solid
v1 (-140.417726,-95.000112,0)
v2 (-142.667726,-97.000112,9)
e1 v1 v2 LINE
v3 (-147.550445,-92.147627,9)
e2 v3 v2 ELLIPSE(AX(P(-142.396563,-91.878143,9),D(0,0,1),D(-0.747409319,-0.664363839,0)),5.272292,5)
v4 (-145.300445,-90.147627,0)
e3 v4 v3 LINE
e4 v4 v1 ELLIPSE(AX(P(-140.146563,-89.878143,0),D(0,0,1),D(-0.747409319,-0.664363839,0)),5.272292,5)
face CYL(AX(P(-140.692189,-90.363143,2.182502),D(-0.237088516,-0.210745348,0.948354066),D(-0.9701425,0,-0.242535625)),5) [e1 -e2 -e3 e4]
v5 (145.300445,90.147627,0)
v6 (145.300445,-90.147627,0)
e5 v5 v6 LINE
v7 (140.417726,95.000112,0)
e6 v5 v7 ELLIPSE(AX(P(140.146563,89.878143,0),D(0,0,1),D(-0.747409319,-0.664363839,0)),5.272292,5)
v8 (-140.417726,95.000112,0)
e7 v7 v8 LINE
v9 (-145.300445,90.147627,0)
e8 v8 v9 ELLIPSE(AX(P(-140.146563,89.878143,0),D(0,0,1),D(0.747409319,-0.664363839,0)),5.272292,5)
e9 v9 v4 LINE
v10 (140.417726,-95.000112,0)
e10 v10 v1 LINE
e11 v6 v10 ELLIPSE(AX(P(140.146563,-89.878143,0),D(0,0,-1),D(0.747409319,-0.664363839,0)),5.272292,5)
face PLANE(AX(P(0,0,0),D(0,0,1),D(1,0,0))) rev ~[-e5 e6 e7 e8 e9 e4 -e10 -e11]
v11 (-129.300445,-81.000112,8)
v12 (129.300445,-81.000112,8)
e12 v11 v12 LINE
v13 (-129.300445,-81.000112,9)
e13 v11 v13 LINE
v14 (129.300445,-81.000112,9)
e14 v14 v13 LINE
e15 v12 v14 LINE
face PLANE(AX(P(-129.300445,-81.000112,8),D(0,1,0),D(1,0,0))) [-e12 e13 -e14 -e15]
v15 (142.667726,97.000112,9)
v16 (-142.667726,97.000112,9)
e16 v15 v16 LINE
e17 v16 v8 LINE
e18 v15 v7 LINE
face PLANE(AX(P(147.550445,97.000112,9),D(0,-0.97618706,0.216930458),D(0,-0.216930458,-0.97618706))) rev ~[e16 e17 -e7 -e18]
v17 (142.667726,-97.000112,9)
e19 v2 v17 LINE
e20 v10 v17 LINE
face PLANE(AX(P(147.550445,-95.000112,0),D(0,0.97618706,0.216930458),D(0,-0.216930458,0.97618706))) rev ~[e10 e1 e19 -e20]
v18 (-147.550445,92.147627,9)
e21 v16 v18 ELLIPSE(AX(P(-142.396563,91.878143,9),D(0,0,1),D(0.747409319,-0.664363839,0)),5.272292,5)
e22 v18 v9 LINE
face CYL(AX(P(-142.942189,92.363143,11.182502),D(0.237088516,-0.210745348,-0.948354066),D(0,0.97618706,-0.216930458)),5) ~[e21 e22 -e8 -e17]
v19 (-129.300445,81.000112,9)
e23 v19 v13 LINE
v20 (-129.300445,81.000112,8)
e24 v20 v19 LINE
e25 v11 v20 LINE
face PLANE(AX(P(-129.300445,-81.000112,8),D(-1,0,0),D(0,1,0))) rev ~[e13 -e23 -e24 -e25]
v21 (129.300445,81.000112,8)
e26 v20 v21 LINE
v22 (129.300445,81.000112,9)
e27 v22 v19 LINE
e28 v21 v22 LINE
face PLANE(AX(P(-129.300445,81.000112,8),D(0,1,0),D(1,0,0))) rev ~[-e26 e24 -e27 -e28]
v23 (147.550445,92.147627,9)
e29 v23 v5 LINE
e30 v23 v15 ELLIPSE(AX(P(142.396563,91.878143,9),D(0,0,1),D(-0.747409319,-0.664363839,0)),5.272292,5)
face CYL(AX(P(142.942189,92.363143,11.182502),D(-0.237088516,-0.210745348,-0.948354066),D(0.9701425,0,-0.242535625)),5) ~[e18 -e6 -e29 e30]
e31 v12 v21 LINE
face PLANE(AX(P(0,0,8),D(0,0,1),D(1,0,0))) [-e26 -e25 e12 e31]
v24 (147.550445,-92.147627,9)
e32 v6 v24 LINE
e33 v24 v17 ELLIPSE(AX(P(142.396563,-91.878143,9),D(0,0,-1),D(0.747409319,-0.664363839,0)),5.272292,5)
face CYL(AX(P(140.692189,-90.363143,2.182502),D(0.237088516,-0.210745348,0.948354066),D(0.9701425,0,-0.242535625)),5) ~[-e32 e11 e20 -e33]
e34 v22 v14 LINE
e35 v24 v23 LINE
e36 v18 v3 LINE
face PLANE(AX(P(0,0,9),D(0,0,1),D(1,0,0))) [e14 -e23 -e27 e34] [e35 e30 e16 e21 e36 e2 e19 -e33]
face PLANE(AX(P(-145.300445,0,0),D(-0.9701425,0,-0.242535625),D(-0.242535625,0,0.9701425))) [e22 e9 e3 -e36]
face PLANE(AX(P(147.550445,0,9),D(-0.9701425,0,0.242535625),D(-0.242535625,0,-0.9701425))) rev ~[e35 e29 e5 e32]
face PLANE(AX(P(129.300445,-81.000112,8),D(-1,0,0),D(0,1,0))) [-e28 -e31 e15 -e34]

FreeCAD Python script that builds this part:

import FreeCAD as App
import Part
import Sketcher
from FreeCAD import Vector
Q = App.Units.Quantity


def edges_at(feature, points):
    """Names of the edges that pass closest to the given points."""
    edges = feature.Shape.Edges
    near = lambda p: min(range(len(edges)), key=lambda i: edges[i].distToShape(Part.Vertex(*p))[0])
    return sorted({f"Edge{near(p) + 1}" for p in points})

doc = App.newDocument("Part")
body = doc.addObject("PartDesign::Body", "Body")

sketch1 = body.newObject("Sketcher::SketchObject", "Sketch")
sketch1.AttachmentSupport = (doc.getObject("XY_Plane"), [""])
sketch1.MapMode = "FlatFace"
sketch1.addGeometry([
    Part.LineSegment(Vector(148, -97, 0), Vector(148, 97, 0)),
    Part.LineSegment(Vector(148, 97, 0), Vector(-148, 97, 0)),
    Part.LineSegment(Vector(-148, 97, 0), Vector(-148, -97, 0)),
    Part.LineSegment(Vector(-148, -97, 0), Vector(148, -97, 0)),
], False)
sketch1.addConstraint([
    Sketcher.Constraint("Coincident", 0, 2, 1, 1),
    Sketcher.Constraint("Coincident", 1, 2, 2, 1),
    Sketcher.Constraint("Coincident", 2, 2, 3, 1),
    Sketcher.Constraint("Coincident", 3, 2, 0, 1),
    Sketcher.Constraint("Vertical", 0),
    Sketcher.Constraint("Horizontal", 1),
    Sketcher.Constraint("Vertical", 2),
    Sketcher.Constraint("Horizontal", 3),
    Sketcher.Constraint("Symmetric", 0, 2, 2, 2, -1, 1),
    Sketcher.Constraint("DistanceX", 1, 2, 1, 1, Q("295.100891 mm")),
    Sketcher.Constraint("DistanceY", 0, 1, 0, 2, Q("194.000224 mm")),
])
pad1 = body.newObject("PartDesign::Pad", "Pad")
pad1.Profile = sketch1
pad1.Length = 9

sketch2 = body.newObject("Sketcher::SketchObject", "Sketch001")
sketch2.AttachmentSupport = (doc.getObject("YZ_Plane"), [""])
sketch2.MapMode = "FlatFace"
sketch2.AttachmentOffset = App.Placement(Vector(0, 0, 147.550445), App.Rotation())
sketch2.addGeometry([
    Part.LineSegment(Vector(97, 9, 0), Vector(95, 0, 0)),
    Part.LineSegment(Vector(95, 0, 0), Vector(97, 0, 0)),
    Part.LineSegment(Vector(97, 0, 0), Vector(97, 9, 0)),
    Part.LineSegment(Vector(-97, 0, 0), Vector(-95, 0, 0)),
    Part.LineSegment(Vector(-95, 0, 0), Vector(-97, 9, 0)),
    Part.LineSegment(Vector(-97, 9, 0), Vector(-97, 0, 0)),
], False)
sketch2.addConstraint([
    Sketcher.Constraint("Coincident", 0, 2, 1, 1),
    Sketcher.Constraint("Coincident", 1, 2, 2, 1),
    Sketcher.Constraint("Coincident", 2, 2, 0, 1),
    Sketcher.Constraint("Coincident", 3, 2, 4, 1),
    Sketcher.Constraint("Coincident", 4, 2, 5, 1),
    Sketcher.Constraint("Coincident", 5, 2, 3, 1),
    Sketcher.Constraint("Horizontal", 1),
    Sketcher.Constraint("Vertical", 2),
    Sketcher.Constraint("Horizontal", 3),
    Sketcher.Constraint("Vertical", 5),
    Sketcher.Constraint("Symmetric", 0, 2, 3, 2, -1, 1),
    Sketcher.Constraint("Symmetric", 2, 2, 4, 2, -2),
    Sketcher.Constraint("PointOnObject", 0, 2, -1),
    Sketcher.Constraint("DistanceX", 1, 1, 1, 2, Q("2 mm")),
    Sketcher.Constraint("DistanceY", 2, 1, 2, 2, Q("9 mm")),
    Sketcher.Constraint("DistanceX", -1, 1, 0, 2, Q("95.000112 mm")),
])
pocket1 = body.newObject("PartDesign::Pocket", "Pocket")
pocket1.Profile = sketch2
pocket1.Length = 330.2

sketch3 = body.newObject("Sketcher::SketchObject", "Sketch002")
sketch3.AttachmentSupport = (doc.getObject("XZ_Plane"), [""])
sketch3.MapMode = "FlatFace"
sketch3.addGeometry([
    Part.LineSegment(Vector(-147.6, 0, 0), Vector(-145.3, 0, 0)),
    Part.LineSegment(Vector(-145.3, 0, 0), Vector(-147.6, 9, 0)),
    Part.LineSegment(Vector(-147.6, 9, 0), Vector(-147.6, 0, 0)),
    Part.LineSegment(Vector(147.6, 9, 0), Vector(145.3, 0, 0)),
    Part.LineSegment(Vector(145.3, 0, 0), Vector(147.6, 0, 0)),
    Part.LineSegment(Vector(147.6, 0, 0), Vector(147.6, 9, 0)),
], False)
sketch3.addConstraint([
    Sketcher.Constraint("Coincident", 0, 2, 1, 1),
    Sketcher.Constraint("Coincident", 1, 2, 2, 1),
    Sketcher.Constraint("Coincident", 2, 2, 0, 1),
    Sketcher.Constraint("Coincident", 3, 2, 4, 1),
    Sketcher.Constraint("Coincident", 4, 2, 5, 1),
    Sketcher.Constraint("Coincident", 5, 2, 3, 1),
    Sketcher.Constraint("Horizontal", 0),
    Sketcher.Constraint("Vertical", 2),
    Sketcher.Constraint("Horizontal", 4),
    Sketcher.Constraint("Vertical", 5),
    Sketcher.Constraint("Symmetric", 0, 2, 3, 2, -1, 1),
    Sketcher.Constraint("Symmetric", 2, 2, 4, 2, -2),
    Sketcher.Constraint("Horizontal", 1, 2, 5, 2),
    Sketcher.Constraint("DistanceY", 2, 2, 2, 1, Q("9 mm")),
    Sketcher.Constraint("DistanceX", 0, 1, 0, 2, Q("2.25 mm")),
    Sketcher.Constraint("DistanceX", 0, 2, 3, 2, Q("290.600891 mm")),
])
pocket2 = body.newObject("PartDesign::Pocket", "Pocket001")
pocket2.Profile = sketch3
pocket2.Length = 381
pocket2.Midplane = True
doc.recompute()

fillet = body.newObject("PartDesign::Fillet", "Fillet")
fillet.Base = (pocket2, edges_at(pocket2, [
    (146.425, -96, 4.5),
    (-146.425, -96, 4.5),
    (146.425, 96, 4.5),
    (-146.425, 96, 4.5),
]))
fillet.Radius = 5

sketch4 = body.newObject("Sketcher::SketchObject", "Sketch003")
sketch4.AttachmentSupport = (doc.getObject("XY_Plane"), [""])
sketch4.MapMode = "FlatFace"
sketch4.AttachmentOffset = App.Placement(Vector(0, 0, 8), App.Rotation())
sketch4.addGeometry([
    Part.LineSegment(Vector(-129, 81, 0), Vector(-129, -81, 0)),
    Part.LineSegment(Vector(-129, -81, 0), Vector(129, -81, 0)),
    Part.LineSegment(Vector(129, -81, 0), Vector(129, 81, 0)),
    Part.LineSegment(Vector(129, 81, 0), Vector(-129, 81, 0)),
], False)
sketch4.addConstraint([
    Sketcher.Constraint("Coincident", 0, 2, 1, 1),
    Sketcher.Constraint("Coincident", 1, 2, 2, 1),
    Sketcher.Constraint("Coincident", 2, 2, 3, 1),
    Sketcher.Constraint("Coincident", 3, 2, 0, 1),
    Sketcher.Constraint("Vertical", 0),
    Sketcher.Constraint("Horizontal", 1),
    Sketcher.Constraint("Vertical", 2),
    Sketcher.Constraint("Horizontal", 3),
    Sketcher.Constraint("Symmetric", 0, 2, 2, 2, -1, 1),
    Sketcher.Constraint("DistanceX", 1, 1, 1, 2, Q("258.600891 mm")),
    Sketcher.Constraint("DistanceY", 0, 2, 0, 1, Q("162.000224 mm")),
])
pocket3 = body.newObject("PartDesign::Pocket", "Pocket002")
pocket3.Profile = sketch4
pocket3.Length = 2
pocket3.Reversed = True

doc.recompute()
